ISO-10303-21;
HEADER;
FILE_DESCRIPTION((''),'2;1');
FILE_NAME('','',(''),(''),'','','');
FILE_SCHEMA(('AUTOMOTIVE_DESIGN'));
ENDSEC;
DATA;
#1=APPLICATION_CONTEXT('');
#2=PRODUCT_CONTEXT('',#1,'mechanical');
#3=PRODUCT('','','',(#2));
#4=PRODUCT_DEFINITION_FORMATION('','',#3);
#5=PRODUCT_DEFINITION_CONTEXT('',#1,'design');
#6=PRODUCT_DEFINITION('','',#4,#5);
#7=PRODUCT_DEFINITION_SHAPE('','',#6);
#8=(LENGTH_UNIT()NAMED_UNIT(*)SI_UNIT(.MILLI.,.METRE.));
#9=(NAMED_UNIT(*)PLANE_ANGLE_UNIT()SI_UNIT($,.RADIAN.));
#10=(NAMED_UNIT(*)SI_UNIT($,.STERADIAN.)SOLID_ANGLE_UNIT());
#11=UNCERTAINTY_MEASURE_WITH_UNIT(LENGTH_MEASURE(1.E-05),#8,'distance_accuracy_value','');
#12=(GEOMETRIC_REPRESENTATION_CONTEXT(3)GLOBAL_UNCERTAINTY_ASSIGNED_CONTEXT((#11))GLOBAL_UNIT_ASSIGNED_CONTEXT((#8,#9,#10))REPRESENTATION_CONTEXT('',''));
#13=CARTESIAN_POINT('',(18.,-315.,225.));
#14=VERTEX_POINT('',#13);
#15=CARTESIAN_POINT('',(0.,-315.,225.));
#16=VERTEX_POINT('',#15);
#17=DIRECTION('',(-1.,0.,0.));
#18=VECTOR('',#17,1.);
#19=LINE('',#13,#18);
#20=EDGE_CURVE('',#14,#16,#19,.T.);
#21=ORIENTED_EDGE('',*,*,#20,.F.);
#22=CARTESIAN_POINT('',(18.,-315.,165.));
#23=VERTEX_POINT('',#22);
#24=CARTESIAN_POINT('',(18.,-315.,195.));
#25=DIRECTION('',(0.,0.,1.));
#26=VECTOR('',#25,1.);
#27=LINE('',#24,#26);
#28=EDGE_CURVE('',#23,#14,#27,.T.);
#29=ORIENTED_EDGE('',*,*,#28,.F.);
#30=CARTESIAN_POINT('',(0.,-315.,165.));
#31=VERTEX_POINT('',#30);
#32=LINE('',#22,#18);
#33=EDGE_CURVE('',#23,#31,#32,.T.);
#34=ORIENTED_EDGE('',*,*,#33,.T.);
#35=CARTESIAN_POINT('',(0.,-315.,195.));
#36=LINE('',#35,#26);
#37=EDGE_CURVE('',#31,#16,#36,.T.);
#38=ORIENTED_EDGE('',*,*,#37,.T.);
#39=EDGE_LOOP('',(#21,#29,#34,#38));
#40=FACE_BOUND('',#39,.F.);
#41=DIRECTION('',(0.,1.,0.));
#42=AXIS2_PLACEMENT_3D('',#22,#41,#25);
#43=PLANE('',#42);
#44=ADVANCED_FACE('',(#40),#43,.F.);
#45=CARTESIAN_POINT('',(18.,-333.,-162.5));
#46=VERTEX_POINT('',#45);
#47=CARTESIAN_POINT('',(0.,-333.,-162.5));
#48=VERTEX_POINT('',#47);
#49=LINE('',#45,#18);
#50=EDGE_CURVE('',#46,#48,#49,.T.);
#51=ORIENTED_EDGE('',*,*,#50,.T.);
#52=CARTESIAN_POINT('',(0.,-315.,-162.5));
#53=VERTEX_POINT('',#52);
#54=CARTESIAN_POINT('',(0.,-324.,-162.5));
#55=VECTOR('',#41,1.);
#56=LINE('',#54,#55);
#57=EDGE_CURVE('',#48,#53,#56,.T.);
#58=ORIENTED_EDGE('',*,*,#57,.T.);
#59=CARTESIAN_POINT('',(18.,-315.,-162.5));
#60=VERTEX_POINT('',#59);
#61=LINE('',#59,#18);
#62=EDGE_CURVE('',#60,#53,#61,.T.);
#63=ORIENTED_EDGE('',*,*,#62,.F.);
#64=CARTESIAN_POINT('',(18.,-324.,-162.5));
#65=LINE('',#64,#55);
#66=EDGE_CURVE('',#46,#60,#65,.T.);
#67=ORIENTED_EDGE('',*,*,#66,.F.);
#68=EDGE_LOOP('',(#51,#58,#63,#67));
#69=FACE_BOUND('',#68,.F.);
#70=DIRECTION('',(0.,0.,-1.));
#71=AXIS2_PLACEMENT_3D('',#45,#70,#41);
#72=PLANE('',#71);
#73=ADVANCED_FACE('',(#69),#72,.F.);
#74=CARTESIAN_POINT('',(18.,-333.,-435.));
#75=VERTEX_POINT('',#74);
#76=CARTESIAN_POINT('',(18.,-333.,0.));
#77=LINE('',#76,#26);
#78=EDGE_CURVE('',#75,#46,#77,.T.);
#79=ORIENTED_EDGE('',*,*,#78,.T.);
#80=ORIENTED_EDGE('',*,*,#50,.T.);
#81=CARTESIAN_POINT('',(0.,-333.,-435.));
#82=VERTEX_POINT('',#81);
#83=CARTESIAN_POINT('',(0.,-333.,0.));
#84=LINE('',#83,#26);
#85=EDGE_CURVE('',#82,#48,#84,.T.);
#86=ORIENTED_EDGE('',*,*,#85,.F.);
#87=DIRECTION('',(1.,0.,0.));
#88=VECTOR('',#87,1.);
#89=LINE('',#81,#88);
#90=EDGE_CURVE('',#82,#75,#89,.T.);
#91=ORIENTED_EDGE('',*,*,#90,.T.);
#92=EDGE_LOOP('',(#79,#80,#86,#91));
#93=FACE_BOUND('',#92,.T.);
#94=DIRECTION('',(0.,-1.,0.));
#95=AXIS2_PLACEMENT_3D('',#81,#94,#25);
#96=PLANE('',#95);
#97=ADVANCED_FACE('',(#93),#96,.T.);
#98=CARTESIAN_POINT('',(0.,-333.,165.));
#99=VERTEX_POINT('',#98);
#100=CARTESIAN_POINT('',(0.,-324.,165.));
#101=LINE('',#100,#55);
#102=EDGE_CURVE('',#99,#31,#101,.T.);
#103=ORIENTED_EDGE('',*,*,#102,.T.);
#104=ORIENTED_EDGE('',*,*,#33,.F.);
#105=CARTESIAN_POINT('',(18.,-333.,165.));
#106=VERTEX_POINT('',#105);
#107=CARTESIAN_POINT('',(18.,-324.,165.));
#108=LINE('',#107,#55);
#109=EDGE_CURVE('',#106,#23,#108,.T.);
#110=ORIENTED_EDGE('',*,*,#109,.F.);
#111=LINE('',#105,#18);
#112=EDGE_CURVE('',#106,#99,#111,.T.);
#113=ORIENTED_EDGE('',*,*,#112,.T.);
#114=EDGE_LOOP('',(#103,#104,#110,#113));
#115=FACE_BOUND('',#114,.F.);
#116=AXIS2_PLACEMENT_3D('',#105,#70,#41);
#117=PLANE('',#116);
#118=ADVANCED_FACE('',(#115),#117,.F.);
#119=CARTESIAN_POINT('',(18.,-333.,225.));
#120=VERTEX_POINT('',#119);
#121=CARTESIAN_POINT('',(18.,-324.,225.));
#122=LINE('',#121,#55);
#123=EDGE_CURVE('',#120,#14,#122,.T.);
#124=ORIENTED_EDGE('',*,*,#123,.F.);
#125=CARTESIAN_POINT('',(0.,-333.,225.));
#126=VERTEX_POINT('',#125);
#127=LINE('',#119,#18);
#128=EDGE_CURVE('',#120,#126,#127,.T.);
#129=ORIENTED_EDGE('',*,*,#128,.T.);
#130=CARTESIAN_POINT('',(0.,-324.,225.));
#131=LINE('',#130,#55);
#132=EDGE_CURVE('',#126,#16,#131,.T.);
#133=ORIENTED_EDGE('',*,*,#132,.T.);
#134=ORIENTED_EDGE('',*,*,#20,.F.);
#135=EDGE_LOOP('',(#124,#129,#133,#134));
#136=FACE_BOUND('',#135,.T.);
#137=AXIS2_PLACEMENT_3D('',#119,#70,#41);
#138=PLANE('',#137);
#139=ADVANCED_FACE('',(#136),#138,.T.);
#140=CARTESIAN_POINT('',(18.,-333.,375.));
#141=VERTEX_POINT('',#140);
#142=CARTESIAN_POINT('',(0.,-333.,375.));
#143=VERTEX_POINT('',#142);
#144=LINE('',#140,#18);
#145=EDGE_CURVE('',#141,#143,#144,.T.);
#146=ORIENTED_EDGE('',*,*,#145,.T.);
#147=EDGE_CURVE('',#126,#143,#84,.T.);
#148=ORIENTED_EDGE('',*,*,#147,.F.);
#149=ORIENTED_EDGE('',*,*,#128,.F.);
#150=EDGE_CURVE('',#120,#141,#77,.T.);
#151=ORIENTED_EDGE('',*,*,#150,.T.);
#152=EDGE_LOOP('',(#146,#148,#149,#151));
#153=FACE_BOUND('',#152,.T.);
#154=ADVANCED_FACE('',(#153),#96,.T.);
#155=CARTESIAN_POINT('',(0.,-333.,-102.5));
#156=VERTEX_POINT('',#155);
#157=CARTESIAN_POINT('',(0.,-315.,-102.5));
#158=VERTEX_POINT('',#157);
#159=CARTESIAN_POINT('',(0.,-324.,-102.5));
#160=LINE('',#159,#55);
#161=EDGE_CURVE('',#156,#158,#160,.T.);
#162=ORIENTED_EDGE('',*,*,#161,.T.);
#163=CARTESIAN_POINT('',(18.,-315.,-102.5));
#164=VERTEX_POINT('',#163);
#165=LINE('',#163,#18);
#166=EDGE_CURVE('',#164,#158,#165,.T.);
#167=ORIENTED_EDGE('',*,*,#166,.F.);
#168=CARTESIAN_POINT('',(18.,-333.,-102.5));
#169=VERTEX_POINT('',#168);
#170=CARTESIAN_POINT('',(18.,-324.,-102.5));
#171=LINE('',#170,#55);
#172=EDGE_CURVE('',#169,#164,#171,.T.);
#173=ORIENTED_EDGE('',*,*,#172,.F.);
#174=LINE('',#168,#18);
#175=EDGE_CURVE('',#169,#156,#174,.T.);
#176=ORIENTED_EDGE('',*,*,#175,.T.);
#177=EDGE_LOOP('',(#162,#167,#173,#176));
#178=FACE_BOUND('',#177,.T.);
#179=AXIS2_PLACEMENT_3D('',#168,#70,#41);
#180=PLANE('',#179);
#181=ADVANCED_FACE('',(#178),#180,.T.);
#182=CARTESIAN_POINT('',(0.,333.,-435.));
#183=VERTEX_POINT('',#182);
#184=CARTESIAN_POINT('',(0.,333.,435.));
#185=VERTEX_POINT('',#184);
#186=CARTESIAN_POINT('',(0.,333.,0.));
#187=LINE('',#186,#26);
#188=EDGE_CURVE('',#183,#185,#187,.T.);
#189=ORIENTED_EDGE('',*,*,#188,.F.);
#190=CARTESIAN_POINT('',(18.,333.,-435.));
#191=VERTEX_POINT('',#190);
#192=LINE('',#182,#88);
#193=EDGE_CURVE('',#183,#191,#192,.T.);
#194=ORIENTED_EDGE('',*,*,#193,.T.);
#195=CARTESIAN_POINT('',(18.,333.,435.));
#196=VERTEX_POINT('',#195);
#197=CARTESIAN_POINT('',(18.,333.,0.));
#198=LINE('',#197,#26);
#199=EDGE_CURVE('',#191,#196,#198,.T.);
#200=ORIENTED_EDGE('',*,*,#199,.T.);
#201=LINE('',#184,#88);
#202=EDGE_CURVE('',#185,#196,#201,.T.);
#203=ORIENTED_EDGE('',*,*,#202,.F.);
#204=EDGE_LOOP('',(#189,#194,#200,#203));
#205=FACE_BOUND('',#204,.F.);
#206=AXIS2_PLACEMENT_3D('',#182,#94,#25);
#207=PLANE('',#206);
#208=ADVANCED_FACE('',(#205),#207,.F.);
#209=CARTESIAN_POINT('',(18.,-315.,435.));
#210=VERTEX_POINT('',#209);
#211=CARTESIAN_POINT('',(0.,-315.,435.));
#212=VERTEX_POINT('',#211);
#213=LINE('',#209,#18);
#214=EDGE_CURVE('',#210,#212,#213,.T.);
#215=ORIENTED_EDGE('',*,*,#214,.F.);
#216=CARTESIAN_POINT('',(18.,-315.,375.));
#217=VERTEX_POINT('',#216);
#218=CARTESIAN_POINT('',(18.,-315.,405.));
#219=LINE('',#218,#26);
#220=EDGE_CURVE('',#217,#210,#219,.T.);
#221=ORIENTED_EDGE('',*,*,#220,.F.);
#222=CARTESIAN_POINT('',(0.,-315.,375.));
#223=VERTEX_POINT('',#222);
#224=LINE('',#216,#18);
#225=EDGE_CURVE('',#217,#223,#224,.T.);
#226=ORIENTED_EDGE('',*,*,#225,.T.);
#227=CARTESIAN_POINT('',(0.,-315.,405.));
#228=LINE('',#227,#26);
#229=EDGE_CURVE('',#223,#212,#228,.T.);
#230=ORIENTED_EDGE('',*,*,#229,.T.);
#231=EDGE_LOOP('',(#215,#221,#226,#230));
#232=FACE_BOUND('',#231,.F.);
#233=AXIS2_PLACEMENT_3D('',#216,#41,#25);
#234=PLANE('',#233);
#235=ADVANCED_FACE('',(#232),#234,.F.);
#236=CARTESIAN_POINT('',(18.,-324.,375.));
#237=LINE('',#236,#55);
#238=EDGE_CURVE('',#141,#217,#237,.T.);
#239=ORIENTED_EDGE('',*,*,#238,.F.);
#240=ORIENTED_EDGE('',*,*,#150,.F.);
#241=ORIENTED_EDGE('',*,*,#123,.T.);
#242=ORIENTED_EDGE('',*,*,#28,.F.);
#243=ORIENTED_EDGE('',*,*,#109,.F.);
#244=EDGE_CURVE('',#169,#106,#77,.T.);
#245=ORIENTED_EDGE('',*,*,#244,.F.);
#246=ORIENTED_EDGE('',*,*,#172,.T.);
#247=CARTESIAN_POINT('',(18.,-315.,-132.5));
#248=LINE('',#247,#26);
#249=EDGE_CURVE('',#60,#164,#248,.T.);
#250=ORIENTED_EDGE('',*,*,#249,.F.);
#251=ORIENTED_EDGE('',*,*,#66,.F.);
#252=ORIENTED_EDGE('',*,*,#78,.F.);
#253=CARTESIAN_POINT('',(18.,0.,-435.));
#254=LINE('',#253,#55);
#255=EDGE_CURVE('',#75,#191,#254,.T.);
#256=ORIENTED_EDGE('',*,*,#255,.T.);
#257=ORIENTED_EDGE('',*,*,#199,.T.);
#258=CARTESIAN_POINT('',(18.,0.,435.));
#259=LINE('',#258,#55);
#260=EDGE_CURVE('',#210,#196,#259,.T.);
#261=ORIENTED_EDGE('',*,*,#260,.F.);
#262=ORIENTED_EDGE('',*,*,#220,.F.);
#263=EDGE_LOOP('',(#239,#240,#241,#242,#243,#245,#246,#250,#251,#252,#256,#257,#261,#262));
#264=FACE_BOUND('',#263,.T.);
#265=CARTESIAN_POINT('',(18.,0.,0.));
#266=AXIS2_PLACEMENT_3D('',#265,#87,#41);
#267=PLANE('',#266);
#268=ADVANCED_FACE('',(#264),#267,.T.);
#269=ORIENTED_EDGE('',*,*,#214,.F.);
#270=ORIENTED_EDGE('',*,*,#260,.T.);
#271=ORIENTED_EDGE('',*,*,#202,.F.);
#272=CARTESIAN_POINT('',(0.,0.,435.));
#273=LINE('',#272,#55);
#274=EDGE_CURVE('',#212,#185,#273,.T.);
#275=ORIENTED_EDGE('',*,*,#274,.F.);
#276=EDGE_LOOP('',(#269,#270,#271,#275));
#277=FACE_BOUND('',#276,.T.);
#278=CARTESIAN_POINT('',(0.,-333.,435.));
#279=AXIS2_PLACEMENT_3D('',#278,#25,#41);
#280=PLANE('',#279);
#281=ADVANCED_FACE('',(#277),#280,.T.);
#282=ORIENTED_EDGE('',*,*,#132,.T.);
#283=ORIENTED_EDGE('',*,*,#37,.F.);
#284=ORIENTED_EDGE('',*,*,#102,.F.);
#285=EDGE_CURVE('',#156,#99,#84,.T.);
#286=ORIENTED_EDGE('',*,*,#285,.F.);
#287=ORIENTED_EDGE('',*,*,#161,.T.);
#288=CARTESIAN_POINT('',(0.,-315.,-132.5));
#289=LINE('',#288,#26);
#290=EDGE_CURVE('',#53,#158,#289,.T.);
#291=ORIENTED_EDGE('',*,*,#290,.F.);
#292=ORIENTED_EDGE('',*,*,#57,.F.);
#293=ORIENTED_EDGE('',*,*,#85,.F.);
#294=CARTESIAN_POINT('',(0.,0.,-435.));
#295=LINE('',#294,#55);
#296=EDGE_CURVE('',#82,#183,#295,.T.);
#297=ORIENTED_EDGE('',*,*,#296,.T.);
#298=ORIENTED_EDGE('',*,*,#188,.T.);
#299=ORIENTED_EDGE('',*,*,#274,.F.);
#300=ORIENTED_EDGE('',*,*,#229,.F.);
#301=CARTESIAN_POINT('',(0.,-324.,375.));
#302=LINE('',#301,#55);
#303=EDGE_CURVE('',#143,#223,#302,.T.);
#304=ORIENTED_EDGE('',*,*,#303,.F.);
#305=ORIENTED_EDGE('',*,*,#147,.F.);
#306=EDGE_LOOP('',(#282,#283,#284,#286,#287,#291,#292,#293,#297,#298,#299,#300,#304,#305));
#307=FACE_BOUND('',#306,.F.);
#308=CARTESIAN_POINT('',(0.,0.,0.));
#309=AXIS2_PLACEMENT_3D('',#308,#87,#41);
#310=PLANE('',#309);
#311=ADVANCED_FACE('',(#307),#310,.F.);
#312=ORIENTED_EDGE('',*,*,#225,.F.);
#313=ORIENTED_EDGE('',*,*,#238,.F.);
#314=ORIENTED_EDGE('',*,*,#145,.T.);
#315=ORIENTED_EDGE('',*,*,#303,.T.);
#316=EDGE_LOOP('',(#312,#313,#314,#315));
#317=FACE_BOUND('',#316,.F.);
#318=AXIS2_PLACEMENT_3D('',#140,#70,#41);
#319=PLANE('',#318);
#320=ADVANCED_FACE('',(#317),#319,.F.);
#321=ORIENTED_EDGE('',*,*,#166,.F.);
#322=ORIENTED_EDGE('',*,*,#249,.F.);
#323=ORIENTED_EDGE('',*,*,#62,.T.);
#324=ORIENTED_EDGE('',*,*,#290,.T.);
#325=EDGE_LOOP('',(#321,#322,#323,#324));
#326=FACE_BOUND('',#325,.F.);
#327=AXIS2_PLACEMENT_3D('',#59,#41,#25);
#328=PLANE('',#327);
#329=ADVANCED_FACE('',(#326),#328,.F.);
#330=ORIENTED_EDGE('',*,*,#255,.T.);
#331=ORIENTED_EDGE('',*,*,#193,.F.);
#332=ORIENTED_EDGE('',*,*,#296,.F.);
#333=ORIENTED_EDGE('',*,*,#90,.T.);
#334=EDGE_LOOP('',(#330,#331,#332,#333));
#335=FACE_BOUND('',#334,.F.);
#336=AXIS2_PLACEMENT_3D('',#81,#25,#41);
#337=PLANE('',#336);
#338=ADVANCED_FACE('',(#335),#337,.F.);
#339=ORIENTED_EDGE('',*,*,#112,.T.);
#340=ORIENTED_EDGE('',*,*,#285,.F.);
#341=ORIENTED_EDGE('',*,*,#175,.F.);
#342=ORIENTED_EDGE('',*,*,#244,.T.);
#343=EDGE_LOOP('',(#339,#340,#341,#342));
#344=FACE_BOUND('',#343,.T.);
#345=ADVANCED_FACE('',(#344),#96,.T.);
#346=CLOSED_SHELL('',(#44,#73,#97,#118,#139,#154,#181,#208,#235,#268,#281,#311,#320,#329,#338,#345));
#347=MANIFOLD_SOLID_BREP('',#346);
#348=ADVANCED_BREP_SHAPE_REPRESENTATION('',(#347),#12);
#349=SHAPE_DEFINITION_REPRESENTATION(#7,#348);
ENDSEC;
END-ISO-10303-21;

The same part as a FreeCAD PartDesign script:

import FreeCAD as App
import Part
import Sketcher

V = App.Vector

doc = App.newDocument("Part")
body = doc.addObject("PartDesign::Body", "Body")

sketch1 = body.newObject("Sketcher::SketchObject", "Sketch")
sketch1.AttachmentSupport = (doc.getObject("YZ_Plane"), [""])
sketch1.MapMode = "FlatFace"
sketch1.addGeometry([
    Part.LineSegment(V(-333, 435, 0), V(-333, -435, 0)),
    Part.LineSegment(V(-333, -435, 0), V(333, -435, 0)),
    Part.LineSegment(V(333, -435, 0), V(333, 435, 0)),
    Part.LineSegment(V(333, 435, 0), V(-333, 435, 0)),
], False)
sketch1.addConstraint([
    Sketcher.Constraint("Coincident", 0, 2, 1, 1),
    Sketcher.Constraint("Coincident", 1, 2, 2, 1),
    Sketcher.Constraint("Coincident", 2, 2, 3, 1),
    Sketcher.Constraint("Coincident", 3, 2, 0, 1),
    Sketcher.Constraint("Vertical", 0),
    Sketcher.Constraint("Horizontal", 1),
    Sketcher.Constraint("Vertical", 2),
    Sketcher.Constraint("Horizontal", 3),
    Sketcher.Constraint("Symmetric", 0, 2, 2, 2, -1, 1),
    Sketcher.Constraint("DistanceX", 1, 1, 1, 2, 666.0),
    Sketcher.Constraint("DistanceY", 0, 2, 0, 1, 870.0),
])
pad1 = body.newObject("PartDesign::Pad", "Pad")
pad1.Profile = sketch1
pad1.Length = 18

sketch2 = body.newObject("Sketcher::SketchObject", "Sketch001")
sketch2.AttachmentSupport = (doc.getObject("YZ_Plane"), [""])
sketch2.MapMode = "FlatFace"
sketch2.AttachmentOffset = App.Placement(V(0, 0, 18), App.Rotation())
sketch2.addGeometry([
    Part.LineSegment(V(-333, 435, 0), V(-333, 375, 0)),
    Part.LineSegment(V(-333, 375, 0), V(-315, 375, 0)),
    Part.LineSegment(V(-315, 375, 0), V(-315, 435, 0)),
    Part.LineSegment(V(-315, 435, 0), V(-333, 435, 0)),
    Part.LineSegment(V(-333, 225, 0), V(-333, 165, 0)),
    Part.LineSegment(V(-333, 165, 0), V(-315, 165, 0)),
    Part.LineSegment(V(-315, 165, 0), V(-315, 225, 0)),
    Part.LineSegment(V(-315, 225, 0), V(-333, 225, 0)),
    Part.LineSegment(V(-333, -102.5, 0), V(-333, -162.5, 0)),
    Part.LineSegment(V(-333, -162.5, 0), V(-315, -162.5, 0)),
    Part.LineSegment(V(-315, -162.5, 0), V(-315, -102.5, 0)),
    Part.LineSegment(V(-315, -102.5, 0), V(-333, -102.5, 0)),
], False)
sketch2.addConstraint([
    Sketcher.Constraint("Coincident", 0, 2, 1, 1),
    Sketcher.Constraint("Coincident", 1, 2, 2, 1),
    Sketcher.Constraint("Coincident", 2, 2, 3, 1),
    Sketcher.Constraint("Coincident", 3, 2, 0, 1),
    Sketcher.Constraint("Coincident", 4, 2, 5, 1),
    Sketcher.Constraint("Coincident", 5, 2, 6, 1),
    Sketcher.Constraint("Coincident", 6, 2, 7, 1),
    Sketcher.Constraint("Coincident", 7, 2, 4, 1),
    Sketcher.Constraint("Coincident", 8, 2, 9, 1),
    Sketcher.Constraint("Coincident", 9, 2, 10, 1),
    Sketcher.Constraint("Coincident", 10, 2, 11, 1),
    Sketcher.Constraint("Coincident", 11, 2, 8, 1),
    Sketcher.Constraint("Vertical", 0),
    Sketcher.Constraint("Horizontal", 1),
    Sketcher.Constraint("Vertical", 2),
    Sketcher.Constraint("Horizontal", 3),
    Sketcher.Constraint("Vertical", 4),
    Sketcher.Constraint("Horizontal", 5),
    Sketcher.Constraint("Vertical", 6),
    Sketcher.Constraint("Horizontal", 7),
    Sketcher.Constraint("Vertical", 8),
    Sketcher.Constraint("Horizontal", 9),
    Sketcher.Constraint("Vertical", 10),
    Sketcher.Constraint("Horizontal", 11),
    Sketcher.Constraint("Vertical", 3, 2, 4, 2),
    Sketcher.Constraint("Vertical", 2, 2, 5, 2),
    Sketcher.Constraint("Vertical", 7, 2, 8, 2),
    Sketcher.Constraint("Vertical", 6, 2, 9, 2),
    Sketcher.Constraint("Equal", 2, 4),
    Sketcher.Constraint("Equal", 6, 8),
    Sketcher.Constraint("DistanceX", 1, 1, 1, 2, 18.0),
    Sketcher.Constraint("DistanceY", 0, 2, 0, 1, 60.0),
    Sketcher.Constraint("DistanceX", 0, 2, -1, 1, 333.0),
    Sketcher.Constraint("DistanceY", -1, 1, 0, 2, 375.0),
    Sketcher.Constraint("DistanceY", -1, 1, 4, 2, 165.0),
    Sketcher.Constraint("DistanceY", 8, 2, -1, 1, 162.5),
])
pocket1 = body.newObject("PartDesign::Pocket", "Pocket")
pocket1.Profile = sketch2
pocket1.Length = 18

doc.recompute()
